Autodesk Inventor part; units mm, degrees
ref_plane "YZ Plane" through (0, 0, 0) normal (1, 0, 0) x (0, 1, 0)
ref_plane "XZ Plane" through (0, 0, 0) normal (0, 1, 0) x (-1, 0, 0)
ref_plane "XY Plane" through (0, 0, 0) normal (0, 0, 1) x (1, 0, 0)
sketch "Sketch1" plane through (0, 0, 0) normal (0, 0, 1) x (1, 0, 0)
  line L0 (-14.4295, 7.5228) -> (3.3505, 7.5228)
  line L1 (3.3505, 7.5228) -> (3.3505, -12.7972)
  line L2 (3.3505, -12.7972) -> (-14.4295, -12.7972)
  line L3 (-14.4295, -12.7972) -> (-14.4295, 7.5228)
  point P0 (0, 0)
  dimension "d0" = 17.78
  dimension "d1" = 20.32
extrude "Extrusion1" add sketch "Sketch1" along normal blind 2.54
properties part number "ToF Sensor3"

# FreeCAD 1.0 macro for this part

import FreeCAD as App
import Part
import Sketcher

V = App.Vector
Q = App.Units.Quantity

doc = App.newDocument("Part")
body = doc.addObject("PartDesign::Body", "Body")

# Sketch on XY plane
sketch1 = doc.addObject("Sketcher::SketchObject", "Sketch")
body.addObject(sketch1)
sketch1.AttachmentSupport = (doc.XY_Plane, [""])
sketch1.MapMode = "FlatFace"
sketch1.addGeometry([
    Part.LineSegment(V(3, 8, 0), V(-14, 8, 0)),
    Part.LineSegment(V(-14, 8, 0), V(-14, -13, 0)),
    Part.LineSegment(V(-14, -13, 0), V(3, -13, 0)),
    Part.LineSegment(V(3, -13, 0), V(3, 8, 0)),
], False)
sketch1.addConstraint([
    Sketcher.Constraint("Coincident", 0, 2, 1, 1),
    Sketcher.Constraint("Coincident", 1, 2, 2, 1),
    Sketcher.Constraint("Coincident", 2, 2, 3, 1),
    Sketcher.Constraint("Coincident", 3, 2, 0, 1),
    Sketcher.Constraint("Horizontal", 0),
    Sketcher.Constraint("Vertical", 1),
    Sketcher.Constraint("Horizontal", 2),
    Sketcher.Constraint("Vertical", 3),
    Sketcher.Constraint("DistanceX", 0, 2, 0, 1, Q("0.7 in")),
    Sketcher.Constraint("DistanceY", 1, 2, 1, 1, Q("0.8 in")),
    Sketcher.Constraint("DistanceX", 0, 2, -1, 1, Q("0.5681 in")),
    Sketcher.Constraint("DistanceY", -1, 1, 0, 2, Q("7.5228 mm")),
])
pad1 = doc.addObject("PartDesign::Pad", "Pad")
body.addObject(pad1)
pad1.Profile = sketch1
pad1.Length = Q("0.1 in")

doc.recompute()
